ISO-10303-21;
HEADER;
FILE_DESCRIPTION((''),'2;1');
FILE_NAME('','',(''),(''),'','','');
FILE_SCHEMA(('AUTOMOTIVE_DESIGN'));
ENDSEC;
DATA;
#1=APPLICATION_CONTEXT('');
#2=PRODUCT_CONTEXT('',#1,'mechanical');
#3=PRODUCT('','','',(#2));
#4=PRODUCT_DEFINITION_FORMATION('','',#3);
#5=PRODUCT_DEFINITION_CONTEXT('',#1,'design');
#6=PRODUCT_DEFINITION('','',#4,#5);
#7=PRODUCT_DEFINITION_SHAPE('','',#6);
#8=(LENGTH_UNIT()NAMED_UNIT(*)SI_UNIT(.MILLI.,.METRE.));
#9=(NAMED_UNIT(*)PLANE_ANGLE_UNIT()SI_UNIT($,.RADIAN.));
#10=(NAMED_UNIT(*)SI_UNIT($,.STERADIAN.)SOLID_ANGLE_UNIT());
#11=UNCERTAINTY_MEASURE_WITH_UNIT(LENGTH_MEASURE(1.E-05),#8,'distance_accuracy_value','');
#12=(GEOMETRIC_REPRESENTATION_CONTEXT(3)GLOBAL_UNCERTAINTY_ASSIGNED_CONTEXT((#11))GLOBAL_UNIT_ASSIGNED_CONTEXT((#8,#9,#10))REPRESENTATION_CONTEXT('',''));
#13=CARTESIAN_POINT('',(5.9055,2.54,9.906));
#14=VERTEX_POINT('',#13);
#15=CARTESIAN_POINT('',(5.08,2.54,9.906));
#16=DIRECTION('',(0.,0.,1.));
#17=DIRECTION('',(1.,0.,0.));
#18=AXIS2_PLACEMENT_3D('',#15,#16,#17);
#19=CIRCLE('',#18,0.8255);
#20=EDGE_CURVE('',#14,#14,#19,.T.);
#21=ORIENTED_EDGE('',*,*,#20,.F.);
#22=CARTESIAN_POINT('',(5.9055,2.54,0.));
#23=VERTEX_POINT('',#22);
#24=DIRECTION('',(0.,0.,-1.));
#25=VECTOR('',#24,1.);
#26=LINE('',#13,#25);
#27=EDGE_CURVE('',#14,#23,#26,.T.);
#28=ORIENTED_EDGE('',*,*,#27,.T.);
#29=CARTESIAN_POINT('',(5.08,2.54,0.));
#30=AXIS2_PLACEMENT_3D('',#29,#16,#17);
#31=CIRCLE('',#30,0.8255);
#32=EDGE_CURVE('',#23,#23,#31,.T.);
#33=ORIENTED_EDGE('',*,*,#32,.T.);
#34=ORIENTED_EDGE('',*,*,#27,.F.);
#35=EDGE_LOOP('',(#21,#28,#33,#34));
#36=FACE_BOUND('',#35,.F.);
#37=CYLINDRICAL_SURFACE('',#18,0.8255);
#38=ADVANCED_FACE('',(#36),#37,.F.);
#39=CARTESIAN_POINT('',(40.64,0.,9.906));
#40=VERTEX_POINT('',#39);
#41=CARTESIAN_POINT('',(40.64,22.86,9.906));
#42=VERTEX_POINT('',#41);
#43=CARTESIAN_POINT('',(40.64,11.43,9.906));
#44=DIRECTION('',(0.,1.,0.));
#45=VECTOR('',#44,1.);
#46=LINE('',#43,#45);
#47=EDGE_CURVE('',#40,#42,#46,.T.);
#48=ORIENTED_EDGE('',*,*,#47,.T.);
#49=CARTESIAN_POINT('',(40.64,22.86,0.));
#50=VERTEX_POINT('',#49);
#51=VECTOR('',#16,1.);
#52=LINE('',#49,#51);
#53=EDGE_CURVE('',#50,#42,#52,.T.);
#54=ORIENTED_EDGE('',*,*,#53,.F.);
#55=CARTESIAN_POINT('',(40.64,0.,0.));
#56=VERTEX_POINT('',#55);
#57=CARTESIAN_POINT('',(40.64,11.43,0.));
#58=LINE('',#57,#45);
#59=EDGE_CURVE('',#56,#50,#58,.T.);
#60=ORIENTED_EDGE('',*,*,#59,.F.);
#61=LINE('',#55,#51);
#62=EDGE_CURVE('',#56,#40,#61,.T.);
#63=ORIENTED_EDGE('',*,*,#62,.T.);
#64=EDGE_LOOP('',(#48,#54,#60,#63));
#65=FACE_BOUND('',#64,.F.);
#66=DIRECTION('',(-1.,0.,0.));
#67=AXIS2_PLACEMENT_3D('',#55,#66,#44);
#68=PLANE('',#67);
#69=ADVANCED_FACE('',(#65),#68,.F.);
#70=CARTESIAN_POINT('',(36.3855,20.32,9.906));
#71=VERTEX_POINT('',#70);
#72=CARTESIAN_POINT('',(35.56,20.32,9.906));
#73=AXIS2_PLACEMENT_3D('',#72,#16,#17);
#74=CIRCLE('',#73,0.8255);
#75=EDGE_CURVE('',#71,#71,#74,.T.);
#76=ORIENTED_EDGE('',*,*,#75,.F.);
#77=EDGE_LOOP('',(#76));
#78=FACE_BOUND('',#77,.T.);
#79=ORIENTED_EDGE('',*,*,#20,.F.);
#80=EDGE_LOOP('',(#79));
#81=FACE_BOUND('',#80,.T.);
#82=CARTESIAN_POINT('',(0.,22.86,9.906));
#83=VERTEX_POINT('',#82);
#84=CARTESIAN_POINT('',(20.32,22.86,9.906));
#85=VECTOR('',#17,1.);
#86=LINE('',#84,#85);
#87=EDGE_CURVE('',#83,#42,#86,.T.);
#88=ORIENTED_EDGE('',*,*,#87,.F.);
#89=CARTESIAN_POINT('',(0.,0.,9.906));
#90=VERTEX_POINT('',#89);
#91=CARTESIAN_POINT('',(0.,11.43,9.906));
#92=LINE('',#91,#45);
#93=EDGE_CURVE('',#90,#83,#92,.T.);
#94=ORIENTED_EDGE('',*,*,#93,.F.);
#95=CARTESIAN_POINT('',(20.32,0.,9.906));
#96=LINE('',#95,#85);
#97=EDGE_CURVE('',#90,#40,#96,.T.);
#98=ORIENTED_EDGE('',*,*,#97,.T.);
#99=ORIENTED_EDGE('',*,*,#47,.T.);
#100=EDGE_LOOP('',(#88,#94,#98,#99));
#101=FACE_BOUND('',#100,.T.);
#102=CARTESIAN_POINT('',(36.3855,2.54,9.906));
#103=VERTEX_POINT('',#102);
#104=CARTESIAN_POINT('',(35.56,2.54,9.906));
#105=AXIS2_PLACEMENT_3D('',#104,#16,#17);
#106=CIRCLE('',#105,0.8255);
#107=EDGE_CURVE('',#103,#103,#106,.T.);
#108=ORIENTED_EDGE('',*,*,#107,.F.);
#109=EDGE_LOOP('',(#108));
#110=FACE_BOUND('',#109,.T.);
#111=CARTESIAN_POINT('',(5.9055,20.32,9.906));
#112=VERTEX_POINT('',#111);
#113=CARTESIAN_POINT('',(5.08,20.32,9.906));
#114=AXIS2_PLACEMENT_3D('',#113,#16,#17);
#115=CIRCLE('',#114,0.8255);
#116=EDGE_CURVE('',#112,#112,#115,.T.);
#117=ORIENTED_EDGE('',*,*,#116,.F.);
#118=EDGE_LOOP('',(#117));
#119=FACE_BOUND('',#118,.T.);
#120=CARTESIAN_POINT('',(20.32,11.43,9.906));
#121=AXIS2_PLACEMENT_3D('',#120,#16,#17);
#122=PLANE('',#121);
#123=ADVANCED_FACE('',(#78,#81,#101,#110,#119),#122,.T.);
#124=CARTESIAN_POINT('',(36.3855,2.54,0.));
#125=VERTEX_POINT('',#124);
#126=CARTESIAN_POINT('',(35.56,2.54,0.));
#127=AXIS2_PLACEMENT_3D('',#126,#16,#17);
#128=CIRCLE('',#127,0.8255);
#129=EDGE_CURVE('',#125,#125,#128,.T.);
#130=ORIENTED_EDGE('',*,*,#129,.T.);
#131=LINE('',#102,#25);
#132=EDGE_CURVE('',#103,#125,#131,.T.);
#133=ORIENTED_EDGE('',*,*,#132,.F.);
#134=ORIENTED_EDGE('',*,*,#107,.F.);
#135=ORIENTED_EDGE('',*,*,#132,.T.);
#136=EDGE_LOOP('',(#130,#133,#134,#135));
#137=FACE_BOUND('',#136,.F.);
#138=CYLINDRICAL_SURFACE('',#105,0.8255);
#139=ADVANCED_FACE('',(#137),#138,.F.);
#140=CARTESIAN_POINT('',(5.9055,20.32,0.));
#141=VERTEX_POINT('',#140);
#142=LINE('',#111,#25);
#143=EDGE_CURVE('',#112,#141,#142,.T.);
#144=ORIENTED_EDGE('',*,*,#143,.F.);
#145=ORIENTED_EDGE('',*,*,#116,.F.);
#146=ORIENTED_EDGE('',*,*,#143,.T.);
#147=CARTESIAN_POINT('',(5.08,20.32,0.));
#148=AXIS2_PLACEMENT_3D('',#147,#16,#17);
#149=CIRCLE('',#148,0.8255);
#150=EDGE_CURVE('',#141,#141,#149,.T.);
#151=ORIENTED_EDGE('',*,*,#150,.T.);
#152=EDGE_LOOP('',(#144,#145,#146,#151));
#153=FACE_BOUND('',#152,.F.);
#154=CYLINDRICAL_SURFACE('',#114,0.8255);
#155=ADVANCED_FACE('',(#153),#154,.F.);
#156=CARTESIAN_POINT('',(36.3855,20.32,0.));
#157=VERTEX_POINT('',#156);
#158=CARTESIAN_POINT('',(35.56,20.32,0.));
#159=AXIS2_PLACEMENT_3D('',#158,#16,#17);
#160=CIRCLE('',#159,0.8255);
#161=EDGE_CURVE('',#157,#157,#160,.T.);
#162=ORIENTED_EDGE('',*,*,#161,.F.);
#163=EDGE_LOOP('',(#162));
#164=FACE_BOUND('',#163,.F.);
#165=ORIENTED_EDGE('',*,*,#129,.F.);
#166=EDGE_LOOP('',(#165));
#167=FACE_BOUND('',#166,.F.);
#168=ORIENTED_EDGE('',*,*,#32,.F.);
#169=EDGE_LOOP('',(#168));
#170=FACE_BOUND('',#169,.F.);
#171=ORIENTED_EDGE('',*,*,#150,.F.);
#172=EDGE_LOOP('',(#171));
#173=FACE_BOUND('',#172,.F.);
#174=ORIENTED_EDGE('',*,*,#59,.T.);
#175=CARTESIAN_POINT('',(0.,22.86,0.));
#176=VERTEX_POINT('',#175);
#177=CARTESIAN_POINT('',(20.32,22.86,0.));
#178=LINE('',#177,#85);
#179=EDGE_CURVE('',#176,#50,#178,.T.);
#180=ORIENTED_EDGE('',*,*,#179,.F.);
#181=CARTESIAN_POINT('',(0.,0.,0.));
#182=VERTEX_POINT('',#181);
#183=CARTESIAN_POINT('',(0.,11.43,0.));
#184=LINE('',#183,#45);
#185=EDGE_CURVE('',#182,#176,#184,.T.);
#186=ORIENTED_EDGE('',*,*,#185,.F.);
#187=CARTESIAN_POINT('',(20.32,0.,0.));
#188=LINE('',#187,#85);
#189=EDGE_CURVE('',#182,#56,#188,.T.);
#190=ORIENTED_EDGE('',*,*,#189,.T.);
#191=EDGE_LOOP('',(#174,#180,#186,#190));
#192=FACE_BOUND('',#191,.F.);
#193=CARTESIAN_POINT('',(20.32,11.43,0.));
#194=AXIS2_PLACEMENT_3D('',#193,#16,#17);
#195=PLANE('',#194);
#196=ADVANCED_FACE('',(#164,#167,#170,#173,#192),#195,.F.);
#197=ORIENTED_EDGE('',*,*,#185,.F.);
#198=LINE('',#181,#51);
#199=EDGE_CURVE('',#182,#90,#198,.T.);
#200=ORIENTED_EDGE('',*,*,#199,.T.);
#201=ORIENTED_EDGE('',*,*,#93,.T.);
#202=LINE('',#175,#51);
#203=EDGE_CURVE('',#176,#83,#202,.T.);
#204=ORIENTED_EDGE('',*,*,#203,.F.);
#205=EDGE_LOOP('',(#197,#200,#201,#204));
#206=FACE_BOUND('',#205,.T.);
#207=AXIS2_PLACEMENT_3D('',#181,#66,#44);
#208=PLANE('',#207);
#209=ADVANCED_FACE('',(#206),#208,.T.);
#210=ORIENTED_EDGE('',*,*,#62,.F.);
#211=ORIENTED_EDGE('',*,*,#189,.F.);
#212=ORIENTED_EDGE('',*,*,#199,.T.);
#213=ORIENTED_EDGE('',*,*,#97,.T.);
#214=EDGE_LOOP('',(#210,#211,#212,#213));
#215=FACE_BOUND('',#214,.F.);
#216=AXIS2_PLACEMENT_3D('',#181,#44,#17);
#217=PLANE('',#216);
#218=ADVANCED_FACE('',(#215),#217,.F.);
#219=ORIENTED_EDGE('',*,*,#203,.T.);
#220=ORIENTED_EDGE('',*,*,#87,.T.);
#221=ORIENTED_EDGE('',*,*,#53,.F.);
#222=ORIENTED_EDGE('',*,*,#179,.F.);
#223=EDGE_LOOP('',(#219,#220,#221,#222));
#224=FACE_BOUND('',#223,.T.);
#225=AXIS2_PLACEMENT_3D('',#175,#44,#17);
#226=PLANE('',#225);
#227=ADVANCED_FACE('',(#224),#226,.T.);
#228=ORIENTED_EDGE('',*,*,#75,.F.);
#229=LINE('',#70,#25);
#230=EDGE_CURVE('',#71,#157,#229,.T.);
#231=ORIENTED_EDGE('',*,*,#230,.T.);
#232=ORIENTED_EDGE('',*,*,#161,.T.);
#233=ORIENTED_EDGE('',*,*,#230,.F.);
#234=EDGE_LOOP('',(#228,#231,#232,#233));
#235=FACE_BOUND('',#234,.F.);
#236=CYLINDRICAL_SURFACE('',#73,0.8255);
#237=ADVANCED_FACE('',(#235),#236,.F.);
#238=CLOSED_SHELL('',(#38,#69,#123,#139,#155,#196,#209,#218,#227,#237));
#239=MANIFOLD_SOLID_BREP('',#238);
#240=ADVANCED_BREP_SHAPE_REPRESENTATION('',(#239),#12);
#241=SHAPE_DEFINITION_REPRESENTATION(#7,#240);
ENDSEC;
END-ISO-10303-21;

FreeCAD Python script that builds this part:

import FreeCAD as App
import Part
import Sketcher

V = App.Vector
Q = App.Units.Quantity

doc = App.newDocument("Part")
body = doc.addObject("PartDesign::Body", "Body")

sketch1 = body.newObject("Sketcher::SketchObject", "Sketch")
sketch1.AttachmentSupport = (doc.getObject("XY_Plane"), [""])
sketch1.MapMode = "FlatFace"
sketch1.addGeometry(Part.LineSegment(V(0, 23, 0), V(0, 0, 0)), False)
sketch1.addGeometry(Part.LineSegment(V(0, 0, 0), V(41, 0, 0)), False)
sketch1.addGeometry(Part.LineSegment(V(41, 0, 0), V(41, 23, 0)), False)
sketch1.addGeometry(Part.LineSegment(V(41, 23, 0), V(0, 23, 0)), False)
sketch1.addConstraint(Sketcher.Constraint("Coincident", 0, 2, 1, 1))
sketch1.addConstraint(Sketcher.Constraint("Coincident", 1, 2, 2, 1))
sketch1.addConstraint(Sketcher.Constraint("Coincident", 2, 2, 3, 1))
sketch1.addConstraint(Sketcher.Constraint("Coincident", 3, 2, 0, 1))
sketch1.addConstraint(Sketcher.Constraint("Vertical", 0))
sketch1.addConstraint(Sketcher.Constraint("Horizontal", 1))
sketch1.addConstraint(Sketcher.Constraint("Vertical", 2))
sketch1.addConstraint(Sketcher.Constraint("Horizontal", 3))
sketch1.addConstraint(Sketcher.Constraint("Coincident", 0, 2, -1, 1))
sketch1.addConstraint(Sketcher.Constraint("DistanceX", 1, 1, 1, 2, Q("1.6 in")))
sketch1.addConstraint(Sketcher.Constraint("DistanceY", 0, 2, 0, 1, Q("0.9 in")))
pad1 = body.newObject("PartDesign::Pad", "Pad")
pad1.Profile = sketch1
pad1.Length = Q("0.39 in")

sketch2 = body.newObject("Sketcher::SketchObject", "Sketch001")
sketch2.AttachmentSupport = (doc.getObject("XY_Plane"), [""])
sketch2.MapMode = "FlatFace"
sketch2.AttachmentOffset = App.Placement(V(0, 0, 0.39 * 25.4), App.Rotation())
sketch2.addGeometry(Part.Circle(V(5.1, 20.3, 0), V(0, 0, 1), 0.8), False)
sketch2.addGeometry(Part.Circle(V(35.6, 20.3, 0), V(0, 0, 1), 0.8), False)
sketch2.addGeometry(Part.Circle(V(35.6, 2.5, 0), V(0, 0, 1), 0.8), False)
sketch2.addGeometry(Part.Circle(V(5.1, 2.5, 0), V(0, 0, 1), 0.8), False)
sketch2.addConstraint(Sketcher.Constraint("Equal", 0, 1))
sketch2.addConstraint(Sketcher.Constraint("Equal", 1, 2))
sketch2.addConstraint(Sketcher.Constraint("Equal", 2, 3))
sketch2.addConstraint(Sketcher.Constraint("Horizontal", 0, 3, 1, 3))
sketch2.addConstraint(Sketcher.Constraint("Horizontal", 2, 3, 3, 3))
sketch2.addConstraint(Sketcher.Constraint("Vertical", 1, 3, 2, 3))
sketch2.addConstraint(Sketcher.Constraint("Vertical", 0, 3, 3, 3))
sketch2.addConstraint(Sketcher.Constraint("Diameter", 0, Q("0.065 in")))
sketch2.addConstraint(Sketcher.Constraint("DistanceX", -1, 1, 0, 3, Q("0.2 in")))
sketch2.addConstraint(Sketcher.Constraint("DistanceY", -1, 1, 0, 3, Q("0.8 in")))
sketch2.addConstraint(Sketcher.Constraint("DistanceX", -1, 1, 1, 3, Q("1.4 in")))
sketch2.addConstraint(Sketcher.Constraint("DistanceY", -1, 1, 2, 3, Q("0.1 in")))
pocket1 = body.newObject("PartDesign::Pocket", "Pocket")
pocket1.Profile = sketch2
pocket1.Type = "ThroughAll"

doc.recompute()
